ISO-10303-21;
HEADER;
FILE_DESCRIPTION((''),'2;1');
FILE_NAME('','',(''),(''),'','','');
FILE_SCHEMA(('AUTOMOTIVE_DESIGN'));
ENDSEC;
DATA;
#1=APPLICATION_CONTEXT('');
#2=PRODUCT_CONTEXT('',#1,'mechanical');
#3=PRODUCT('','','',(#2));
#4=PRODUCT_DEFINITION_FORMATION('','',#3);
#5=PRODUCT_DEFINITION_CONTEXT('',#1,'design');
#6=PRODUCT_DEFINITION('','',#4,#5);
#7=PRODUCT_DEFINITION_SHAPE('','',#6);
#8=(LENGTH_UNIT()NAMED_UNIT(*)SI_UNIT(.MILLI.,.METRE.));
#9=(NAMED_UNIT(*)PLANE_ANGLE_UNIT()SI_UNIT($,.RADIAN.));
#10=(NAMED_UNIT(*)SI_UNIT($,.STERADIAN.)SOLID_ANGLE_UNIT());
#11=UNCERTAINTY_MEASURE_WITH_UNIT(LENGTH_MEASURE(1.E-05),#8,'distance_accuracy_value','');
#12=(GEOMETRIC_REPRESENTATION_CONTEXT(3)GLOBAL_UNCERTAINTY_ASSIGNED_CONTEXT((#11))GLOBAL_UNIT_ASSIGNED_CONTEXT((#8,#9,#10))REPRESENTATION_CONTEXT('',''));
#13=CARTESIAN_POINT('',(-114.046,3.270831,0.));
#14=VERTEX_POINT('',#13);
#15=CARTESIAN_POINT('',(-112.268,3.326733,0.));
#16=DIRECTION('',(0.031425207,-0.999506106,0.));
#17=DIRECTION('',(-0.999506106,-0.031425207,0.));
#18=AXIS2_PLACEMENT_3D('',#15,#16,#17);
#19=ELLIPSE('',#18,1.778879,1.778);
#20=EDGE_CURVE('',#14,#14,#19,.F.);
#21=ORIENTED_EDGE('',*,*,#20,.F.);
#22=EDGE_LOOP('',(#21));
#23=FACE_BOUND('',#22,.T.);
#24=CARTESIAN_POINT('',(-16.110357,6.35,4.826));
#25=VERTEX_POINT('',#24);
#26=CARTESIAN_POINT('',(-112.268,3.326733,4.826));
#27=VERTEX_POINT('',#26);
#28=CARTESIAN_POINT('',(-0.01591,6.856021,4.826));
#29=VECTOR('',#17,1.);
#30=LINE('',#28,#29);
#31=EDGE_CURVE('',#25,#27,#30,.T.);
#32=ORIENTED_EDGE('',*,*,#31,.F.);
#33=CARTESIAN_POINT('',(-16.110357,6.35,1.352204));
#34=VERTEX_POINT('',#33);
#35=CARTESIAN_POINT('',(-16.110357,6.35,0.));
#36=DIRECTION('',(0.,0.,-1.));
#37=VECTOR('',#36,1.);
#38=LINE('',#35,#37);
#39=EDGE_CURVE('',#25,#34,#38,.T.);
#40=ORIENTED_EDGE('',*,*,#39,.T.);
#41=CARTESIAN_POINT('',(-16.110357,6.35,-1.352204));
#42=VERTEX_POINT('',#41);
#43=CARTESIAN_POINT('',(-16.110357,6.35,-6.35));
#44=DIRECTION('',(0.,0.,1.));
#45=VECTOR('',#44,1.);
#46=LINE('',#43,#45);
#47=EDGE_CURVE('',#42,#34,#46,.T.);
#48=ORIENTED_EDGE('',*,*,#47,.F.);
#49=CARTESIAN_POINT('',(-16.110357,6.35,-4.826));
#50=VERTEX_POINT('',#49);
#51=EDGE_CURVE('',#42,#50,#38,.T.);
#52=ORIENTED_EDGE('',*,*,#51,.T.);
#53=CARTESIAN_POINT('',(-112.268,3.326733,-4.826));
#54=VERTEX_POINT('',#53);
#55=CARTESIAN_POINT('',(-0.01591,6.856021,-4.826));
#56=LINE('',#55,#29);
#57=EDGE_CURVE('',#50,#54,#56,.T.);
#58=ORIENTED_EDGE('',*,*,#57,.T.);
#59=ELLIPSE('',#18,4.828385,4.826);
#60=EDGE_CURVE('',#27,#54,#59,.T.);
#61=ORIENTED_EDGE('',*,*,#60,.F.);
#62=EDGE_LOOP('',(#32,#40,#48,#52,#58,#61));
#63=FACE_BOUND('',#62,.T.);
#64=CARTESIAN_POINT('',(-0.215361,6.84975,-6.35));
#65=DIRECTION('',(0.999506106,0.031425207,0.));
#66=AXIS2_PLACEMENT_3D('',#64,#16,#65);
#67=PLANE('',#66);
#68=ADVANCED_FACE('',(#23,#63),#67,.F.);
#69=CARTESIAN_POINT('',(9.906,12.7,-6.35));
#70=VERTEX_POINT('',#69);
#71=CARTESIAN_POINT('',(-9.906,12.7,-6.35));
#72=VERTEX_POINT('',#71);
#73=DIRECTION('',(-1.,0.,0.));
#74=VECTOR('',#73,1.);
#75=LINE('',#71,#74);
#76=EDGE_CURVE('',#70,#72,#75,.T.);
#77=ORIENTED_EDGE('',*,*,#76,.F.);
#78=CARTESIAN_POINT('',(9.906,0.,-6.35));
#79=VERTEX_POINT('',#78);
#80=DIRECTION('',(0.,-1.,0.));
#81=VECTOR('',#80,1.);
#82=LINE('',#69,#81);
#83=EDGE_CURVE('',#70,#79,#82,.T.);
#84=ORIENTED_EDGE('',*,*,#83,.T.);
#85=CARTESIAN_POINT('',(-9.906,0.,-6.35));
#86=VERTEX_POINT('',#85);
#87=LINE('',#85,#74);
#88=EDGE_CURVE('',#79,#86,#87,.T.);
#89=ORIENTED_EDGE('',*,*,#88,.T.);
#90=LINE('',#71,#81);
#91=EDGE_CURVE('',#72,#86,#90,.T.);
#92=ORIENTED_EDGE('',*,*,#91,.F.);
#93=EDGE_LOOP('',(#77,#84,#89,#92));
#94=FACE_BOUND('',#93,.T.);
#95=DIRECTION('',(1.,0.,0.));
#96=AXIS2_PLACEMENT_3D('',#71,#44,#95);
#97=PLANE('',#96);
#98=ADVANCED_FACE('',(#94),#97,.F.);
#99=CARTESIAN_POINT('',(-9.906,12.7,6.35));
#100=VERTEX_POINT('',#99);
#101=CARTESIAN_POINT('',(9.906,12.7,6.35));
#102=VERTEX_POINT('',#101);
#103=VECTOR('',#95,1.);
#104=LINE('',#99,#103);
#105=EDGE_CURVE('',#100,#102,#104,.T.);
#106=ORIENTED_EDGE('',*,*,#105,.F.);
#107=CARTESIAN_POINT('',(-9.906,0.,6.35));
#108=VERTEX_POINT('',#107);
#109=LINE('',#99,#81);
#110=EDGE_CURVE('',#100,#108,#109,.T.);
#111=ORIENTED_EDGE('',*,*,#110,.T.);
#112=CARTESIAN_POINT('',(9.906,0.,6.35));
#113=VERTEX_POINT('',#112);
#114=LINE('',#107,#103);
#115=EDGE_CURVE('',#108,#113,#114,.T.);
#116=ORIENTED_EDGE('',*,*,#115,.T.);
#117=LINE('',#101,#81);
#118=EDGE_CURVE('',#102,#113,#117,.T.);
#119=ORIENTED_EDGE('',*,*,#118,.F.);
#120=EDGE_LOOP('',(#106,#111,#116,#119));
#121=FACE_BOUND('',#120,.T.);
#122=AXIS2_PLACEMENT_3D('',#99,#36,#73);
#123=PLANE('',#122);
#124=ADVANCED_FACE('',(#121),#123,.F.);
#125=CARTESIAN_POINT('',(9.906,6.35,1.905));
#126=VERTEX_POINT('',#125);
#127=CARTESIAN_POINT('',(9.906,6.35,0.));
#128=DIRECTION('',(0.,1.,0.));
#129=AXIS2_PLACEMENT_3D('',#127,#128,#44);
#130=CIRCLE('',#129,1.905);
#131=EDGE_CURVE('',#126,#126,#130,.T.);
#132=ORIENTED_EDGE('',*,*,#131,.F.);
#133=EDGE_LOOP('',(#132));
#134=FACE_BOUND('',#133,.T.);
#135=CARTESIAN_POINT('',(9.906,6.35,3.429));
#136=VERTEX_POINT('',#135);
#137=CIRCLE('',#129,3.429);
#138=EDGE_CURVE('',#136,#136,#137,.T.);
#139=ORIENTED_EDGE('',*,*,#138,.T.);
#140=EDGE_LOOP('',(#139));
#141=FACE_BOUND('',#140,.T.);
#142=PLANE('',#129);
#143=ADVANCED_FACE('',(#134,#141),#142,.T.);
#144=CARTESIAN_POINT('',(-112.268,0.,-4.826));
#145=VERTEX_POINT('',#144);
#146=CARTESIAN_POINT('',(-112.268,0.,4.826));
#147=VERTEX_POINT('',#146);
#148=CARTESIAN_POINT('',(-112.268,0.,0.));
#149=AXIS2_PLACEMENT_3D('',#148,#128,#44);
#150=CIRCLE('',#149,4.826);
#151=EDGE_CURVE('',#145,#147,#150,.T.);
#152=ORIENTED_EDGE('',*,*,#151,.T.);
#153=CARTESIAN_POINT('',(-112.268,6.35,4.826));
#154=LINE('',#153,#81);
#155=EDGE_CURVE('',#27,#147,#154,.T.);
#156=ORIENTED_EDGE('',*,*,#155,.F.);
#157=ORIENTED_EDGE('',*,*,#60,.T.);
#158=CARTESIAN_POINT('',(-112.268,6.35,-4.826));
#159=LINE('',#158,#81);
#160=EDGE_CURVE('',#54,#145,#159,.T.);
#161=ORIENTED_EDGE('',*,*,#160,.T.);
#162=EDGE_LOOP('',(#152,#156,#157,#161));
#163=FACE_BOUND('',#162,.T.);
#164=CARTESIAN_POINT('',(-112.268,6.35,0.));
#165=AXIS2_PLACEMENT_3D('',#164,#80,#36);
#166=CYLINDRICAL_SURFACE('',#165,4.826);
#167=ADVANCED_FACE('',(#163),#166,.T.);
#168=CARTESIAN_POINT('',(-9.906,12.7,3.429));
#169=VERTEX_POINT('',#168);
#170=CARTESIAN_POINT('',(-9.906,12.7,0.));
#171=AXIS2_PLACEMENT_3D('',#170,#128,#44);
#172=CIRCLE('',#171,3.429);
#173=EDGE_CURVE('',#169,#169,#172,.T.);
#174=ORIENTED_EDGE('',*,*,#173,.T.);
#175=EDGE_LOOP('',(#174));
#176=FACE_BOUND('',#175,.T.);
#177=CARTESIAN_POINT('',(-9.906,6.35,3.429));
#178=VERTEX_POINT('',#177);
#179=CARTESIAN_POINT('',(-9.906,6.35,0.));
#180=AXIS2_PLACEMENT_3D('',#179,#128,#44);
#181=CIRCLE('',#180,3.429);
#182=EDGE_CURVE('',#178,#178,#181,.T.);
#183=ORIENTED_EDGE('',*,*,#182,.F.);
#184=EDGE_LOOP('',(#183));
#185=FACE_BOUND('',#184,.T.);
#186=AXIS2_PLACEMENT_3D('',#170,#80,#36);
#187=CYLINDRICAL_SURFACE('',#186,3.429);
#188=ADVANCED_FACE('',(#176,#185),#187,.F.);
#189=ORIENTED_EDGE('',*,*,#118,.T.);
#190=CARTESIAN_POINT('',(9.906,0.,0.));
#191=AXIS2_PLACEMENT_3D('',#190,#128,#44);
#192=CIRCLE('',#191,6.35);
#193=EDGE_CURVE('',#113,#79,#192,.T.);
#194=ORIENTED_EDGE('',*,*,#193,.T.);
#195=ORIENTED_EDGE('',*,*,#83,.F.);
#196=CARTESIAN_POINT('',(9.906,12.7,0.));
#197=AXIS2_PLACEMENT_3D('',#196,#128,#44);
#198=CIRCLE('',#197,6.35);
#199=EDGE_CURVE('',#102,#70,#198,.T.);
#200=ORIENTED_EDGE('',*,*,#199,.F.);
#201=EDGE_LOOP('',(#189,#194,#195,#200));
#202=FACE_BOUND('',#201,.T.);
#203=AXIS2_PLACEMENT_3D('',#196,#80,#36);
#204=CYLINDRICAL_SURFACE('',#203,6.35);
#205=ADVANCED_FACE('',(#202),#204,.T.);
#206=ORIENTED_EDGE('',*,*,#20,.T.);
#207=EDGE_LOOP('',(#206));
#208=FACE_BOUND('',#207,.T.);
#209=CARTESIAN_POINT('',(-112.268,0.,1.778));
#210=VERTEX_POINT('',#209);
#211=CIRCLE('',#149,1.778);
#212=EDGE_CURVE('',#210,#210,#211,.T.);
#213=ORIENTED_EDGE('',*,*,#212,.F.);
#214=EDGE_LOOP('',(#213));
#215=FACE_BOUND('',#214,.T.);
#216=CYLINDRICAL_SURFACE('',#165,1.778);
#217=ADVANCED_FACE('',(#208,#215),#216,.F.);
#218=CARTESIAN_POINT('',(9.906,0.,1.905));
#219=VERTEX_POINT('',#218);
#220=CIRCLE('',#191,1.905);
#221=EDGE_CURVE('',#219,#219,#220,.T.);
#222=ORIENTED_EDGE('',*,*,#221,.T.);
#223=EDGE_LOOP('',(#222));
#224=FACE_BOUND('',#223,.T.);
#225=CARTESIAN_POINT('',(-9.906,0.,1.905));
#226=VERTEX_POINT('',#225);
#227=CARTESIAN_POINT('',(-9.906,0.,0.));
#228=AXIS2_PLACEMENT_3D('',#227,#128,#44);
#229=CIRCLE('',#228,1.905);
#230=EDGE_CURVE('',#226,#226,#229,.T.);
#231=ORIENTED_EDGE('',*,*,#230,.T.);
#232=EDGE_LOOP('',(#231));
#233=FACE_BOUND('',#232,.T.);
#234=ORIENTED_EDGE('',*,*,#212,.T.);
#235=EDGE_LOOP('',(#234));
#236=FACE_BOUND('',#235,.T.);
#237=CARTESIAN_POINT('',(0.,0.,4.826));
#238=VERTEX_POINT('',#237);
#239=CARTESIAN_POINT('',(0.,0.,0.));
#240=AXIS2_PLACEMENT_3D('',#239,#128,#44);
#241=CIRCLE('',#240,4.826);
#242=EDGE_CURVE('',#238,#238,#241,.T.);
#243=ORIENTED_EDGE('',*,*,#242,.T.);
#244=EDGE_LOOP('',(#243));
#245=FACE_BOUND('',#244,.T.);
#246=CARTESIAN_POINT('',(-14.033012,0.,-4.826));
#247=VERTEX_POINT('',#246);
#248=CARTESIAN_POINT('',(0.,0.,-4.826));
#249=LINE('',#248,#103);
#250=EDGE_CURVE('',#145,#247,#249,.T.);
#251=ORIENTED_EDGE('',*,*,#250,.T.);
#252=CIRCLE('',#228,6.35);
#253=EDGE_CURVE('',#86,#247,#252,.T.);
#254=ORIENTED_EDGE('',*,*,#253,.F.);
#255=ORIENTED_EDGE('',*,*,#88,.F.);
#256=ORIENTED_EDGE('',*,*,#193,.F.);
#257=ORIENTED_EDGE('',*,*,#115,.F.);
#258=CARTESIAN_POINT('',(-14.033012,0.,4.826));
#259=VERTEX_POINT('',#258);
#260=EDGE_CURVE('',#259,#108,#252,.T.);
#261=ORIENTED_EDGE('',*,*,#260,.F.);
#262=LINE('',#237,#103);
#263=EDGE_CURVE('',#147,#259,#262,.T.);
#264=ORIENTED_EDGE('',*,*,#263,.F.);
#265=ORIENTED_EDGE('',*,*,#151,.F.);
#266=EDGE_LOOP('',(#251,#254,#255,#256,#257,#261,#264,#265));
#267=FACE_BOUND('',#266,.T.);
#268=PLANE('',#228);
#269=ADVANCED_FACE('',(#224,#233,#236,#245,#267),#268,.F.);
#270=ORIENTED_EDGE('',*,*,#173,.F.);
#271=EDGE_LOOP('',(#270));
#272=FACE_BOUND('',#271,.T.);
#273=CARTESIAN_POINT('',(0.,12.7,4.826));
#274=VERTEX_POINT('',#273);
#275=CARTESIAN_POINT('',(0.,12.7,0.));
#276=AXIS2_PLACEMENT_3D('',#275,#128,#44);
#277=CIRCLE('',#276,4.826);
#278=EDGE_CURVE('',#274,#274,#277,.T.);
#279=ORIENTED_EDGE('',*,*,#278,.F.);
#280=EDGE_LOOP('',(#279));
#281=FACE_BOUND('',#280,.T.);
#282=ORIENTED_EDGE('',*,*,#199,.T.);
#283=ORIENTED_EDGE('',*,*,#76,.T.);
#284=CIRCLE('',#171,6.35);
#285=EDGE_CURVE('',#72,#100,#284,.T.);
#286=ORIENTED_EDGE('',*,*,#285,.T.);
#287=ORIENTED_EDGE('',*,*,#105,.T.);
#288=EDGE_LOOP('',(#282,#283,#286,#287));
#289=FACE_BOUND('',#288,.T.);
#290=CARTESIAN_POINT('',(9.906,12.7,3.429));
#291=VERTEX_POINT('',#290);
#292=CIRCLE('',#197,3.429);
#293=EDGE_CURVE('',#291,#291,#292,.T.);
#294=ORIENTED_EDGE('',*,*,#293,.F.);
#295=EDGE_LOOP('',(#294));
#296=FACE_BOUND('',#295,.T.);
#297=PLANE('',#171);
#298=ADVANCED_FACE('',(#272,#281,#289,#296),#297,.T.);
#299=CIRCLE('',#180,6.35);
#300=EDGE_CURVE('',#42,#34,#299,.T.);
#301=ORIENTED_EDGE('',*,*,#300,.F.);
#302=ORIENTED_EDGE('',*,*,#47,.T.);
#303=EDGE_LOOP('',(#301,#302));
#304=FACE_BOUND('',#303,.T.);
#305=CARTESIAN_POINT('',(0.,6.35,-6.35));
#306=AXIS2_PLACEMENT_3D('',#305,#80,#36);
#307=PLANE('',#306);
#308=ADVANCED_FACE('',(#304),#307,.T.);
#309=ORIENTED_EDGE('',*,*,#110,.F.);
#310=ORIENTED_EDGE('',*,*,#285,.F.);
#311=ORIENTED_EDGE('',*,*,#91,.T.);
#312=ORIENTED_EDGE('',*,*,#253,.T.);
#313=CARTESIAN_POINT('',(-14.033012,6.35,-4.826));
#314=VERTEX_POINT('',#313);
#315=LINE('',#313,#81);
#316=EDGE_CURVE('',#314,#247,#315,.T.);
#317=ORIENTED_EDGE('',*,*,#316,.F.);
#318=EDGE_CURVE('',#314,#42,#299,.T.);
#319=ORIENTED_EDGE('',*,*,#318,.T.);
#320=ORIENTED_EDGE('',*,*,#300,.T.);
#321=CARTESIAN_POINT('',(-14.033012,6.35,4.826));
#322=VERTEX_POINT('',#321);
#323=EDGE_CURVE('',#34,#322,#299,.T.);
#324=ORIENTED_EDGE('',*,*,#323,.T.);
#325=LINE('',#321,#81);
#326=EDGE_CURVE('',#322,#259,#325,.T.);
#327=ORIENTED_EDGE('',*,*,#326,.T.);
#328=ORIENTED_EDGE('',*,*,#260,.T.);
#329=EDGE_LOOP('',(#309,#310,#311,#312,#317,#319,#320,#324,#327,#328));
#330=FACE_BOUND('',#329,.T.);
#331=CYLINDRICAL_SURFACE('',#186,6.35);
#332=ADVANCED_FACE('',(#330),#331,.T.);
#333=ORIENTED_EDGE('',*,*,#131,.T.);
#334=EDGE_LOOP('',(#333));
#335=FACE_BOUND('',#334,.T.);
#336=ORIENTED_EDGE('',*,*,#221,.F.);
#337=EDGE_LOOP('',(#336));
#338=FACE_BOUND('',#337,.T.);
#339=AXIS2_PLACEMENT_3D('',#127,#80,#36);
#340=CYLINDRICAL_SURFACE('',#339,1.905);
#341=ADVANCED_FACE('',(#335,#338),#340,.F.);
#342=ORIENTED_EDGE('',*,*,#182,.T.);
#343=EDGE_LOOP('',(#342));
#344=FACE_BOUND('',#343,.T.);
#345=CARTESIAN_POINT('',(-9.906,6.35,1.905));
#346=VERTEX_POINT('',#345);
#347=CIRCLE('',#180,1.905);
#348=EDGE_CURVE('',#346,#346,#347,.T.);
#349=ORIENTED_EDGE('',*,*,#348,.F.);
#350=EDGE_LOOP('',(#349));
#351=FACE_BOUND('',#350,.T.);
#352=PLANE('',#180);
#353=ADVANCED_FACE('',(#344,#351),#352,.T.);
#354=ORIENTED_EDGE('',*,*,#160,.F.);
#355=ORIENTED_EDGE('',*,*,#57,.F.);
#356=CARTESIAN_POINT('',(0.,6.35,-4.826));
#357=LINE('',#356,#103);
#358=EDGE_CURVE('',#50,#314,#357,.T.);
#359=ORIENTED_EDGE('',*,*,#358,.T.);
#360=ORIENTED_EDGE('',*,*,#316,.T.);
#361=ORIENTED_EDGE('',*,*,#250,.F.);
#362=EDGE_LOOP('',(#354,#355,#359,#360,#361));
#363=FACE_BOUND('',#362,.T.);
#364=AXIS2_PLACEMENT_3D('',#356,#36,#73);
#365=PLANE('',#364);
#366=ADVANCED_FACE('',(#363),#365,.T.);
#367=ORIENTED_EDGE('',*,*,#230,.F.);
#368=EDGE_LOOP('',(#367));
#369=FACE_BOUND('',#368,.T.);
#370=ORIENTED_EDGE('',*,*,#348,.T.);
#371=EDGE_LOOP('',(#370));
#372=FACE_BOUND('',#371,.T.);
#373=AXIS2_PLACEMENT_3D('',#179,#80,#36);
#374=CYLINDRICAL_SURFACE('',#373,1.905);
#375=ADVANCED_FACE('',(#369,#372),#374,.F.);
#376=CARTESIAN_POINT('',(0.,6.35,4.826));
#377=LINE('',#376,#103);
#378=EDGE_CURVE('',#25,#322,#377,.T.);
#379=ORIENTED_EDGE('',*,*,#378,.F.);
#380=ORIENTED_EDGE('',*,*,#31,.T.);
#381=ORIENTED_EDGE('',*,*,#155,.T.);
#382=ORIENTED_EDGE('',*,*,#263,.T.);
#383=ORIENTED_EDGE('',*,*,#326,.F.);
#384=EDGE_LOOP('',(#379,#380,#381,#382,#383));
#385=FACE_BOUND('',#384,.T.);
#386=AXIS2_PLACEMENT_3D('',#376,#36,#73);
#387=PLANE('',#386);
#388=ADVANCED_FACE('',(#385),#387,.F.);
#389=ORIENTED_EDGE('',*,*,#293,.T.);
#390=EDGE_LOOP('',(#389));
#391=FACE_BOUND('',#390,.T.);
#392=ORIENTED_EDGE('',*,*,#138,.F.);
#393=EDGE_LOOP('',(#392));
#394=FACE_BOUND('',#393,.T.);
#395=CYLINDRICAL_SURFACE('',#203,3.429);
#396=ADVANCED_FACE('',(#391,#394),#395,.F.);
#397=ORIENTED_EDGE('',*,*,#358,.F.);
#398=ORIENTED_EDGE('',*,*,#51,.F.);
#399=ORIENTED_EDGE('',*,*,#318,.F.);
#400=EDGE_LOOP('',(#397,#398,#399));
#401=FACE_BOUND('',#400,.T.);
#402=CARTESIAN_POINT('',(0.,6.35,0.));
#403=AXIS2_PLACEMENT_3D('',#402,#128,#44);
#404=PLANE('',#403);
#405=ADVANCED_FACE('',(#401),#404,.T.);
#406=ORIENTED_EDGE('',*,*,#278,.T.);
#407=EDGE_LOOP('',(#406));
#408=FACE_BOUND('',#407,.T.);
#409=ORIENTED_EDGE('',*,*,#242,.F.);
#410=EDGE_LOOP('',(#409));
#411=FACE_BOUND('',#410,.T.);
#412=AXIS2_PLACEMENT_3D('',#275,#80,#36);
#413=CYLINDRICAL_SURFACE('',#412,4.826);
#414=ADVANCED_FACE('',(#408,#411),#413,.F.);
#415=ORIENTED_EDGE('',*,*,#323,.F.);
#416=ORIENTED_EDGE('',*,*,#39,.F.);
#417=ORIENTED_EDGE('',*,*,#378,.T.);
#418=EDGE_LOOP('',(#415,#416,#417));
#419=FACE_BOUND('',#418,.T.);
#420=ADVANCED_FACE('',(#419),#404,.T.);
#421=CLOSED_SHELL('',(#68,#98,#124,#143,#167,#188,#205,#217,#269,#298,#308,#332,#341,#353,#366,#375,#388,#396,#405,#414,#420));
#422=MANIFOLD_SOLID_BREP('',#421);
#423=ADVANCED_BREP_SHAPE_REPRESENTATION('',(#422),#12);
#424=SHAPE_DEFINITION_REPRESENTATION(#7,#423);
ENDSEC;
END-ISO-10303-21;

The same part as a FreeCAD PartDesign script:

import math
import FreeCAD as App
import Part
import Sketcher

V = App.Vector
Q = App.Units.Quantity


def add_polygon(sketch, points):
    """Adds a closed chain of lines whose ends are joined by coincident constraints."""
    first, n = sketch.GeometryCount, len(points)
    for a, b in zip(points, points[1:] + points[:1]):
        sketch.addGeometry(Part.LineSegment(App.Vector(*a, 0), App.Vector(*b, 0)), False)
    for i in range(n):
        sketch.addConstraint(Sketcher.Constraint("Coincident", first + i, 2, first + (i + 1) % n, 1))

doc = App.newDocument("Part")
body = doc.addObject("PartDesign::Body", "Body")

# Sketch on XZ plane
sketch1 = doc.addObject("Sketcher::SketchObject", "Sketch")
body.addObject(sketch1)
sketch1.AttachmentSupport = (doc.XZ_Plane, [""])
sketch1.MapMode = "FlatFace"
sketch1.addGeometry([
    Part.LineSegment(V(9.9, -6.3, 0), V(-9.9, -6.3, 0)),  # 0
    Part.ArcOfCircle(Part.Circle(V(-9.9, 0, 0), V(0, 0, 1), 6.3), math.radians(90), math.radians(270)),  # 1
    Part.LineSegment(V(-9.9, 6.3, 0), V(9.9, 6.3, 0)),  # 2
    Part.ArcOfCircle(Part.Circle(V(9.9, 0, 0), V(0, 0, 1), 6.3), math.radians(-90), math.radians(90)),  # 3
    Part.Circle(V(9.9, 0, 0), V(0, 0, 1), 3.4),  # 4
    Part.Circle(V(-9.9, 0, 0), V(0, 0, 1), 3.4),  # 5
    Part.Circle(V(0, 0, 0), V(0, 0, 1), 4.8),  # 6
], False)
sketch1.addConstraint([
    Sketcher.Constraint("Tangent", 0, 2, 1, 2),
    Sketcher.Constraint("Tangent", 1, 1, 2, 1),
    Sketcher.Constraint("Tangent", 2, 2, 3, 2),
    Sketcher.Constraint("Tangent", 3, 1, 0, 1),
    Sketcher.Constraint("Horizontal", 0),
    Sketcher.Constraint("Horizontal", 2),
    Sketcher.Constraint("Coincident", 6, 3, -1, 1),
    Sketcher.Constraint("Coincident", 4, 3, 3, 3),
    Sketcher.Constraint("Coincident", 5, 3, 1, 3),
    Sketcher.Constraint("Equal", 4, 5),
    Sketcher.Constraint("Symmetric", 1, 3, 3, 3, -1, 1),
    Sketcher.Constraint("Diameter", 4, Q("0.27 in")),
    Sketcher.Constraint("Diameter", 6, Q("0.38 in")),
    Sketcher.Constraint("Radius", 1, Q("0.25 in")),
    Sketcher.Constraint("DistanceX", 0, 2, 0, 1, Q("0.78 in")),
])
pad1 = doc.addObject("PartDesign::Pad", "Pad")
body.addObject(pad1)
pad1.Profile = sketch1
pad1.Length = Q("0.5 in")
pad1.Reversed = True

# Sketch on XZ plane
sketch2 = doc.addObject("Sketcher::SketchObject", "Sketch001")
body.addObject(sketch2)
sketch2.AttachmentSupport = (doc.XZ_Plane, [""])
sketch2.MapMode = "FlatFace"
sketch2.addGeometry([
    Part.Circle(V(-9.9, 0, 0), V(0, 0, 1), 3.4),
    Part.Circle(V(-9.9, 0, 0), V(0, 0, 1), 1.9),
    Part.Circle(V(9.9, 0, 0), V(0, 0, 1), 3.4),
    Part.Circle(V(9.9, 0, 0), V(0, 0, 1), 1.9),
], False)
sketch2.addConstraint([
    Sketcher.Constraint("Coincident", 1, 3, 0, 3),
    Sketcher.Constraint("Coincident", 3, 3, 2, 3),
    Sketcher.Constraint("Equal", 0, 2),
    Sketcher.Constraint("Equal", 1, 3),
    Sketcher.Constraint("Symmetric", 0, 3, 2, 3, -1, 1),
    Sketcher.Constraint("PointOnObject", 0, 3, -1),
    Sketcher.Constraint("Diameter", 0, Q("0.27 in")),
    Sketcher.Constraint("Diameter", 1, Q("0.15 in")),
    Sketcher.Constraint("DistanceX", 0, 3, -1, 1, Q("0.39 in")),
])
pad2 = doc.addObject("PartDesign::Pad", "Pad001")
body.addObject(pad2)
pad2.Profile = sketch2
pad2.Length = Q("0.25 in")
pad2.Reversed = True

# Sketch on XZ plane
sketch3 = doc.addObject("Sketcher::SketchObject", "Sketch002")
body.addObject(sketch3)
sketch3.AttachmentSupport = (doc.XZ_Plane, [""])
sketch3.MapMode = "FlatFace"
sketch3.addGeometry([
    Part.ArcOfCircle(Part.Circle(V(-9.9, 0, 0), V(0, 0, 1), 6.4), math.radians(131), math.radians(180)),  # 0
    Part.ArcOfCircle(Part.Circle(V(-9.9, 0, 0), V(0, 0, 1), 6.4), math.radians(-180), math.radians(-131)),  # 1
    Part.LineSegment(V(-14, -4.8, 0), V(-112.3, -4.8, 0)),  # 2
    Part.ArcOfCircle(Part.Circle(V(-112.3, 0, 0), V(0, 0, 1), 4.8), math.radians(90), math.radians(270)),  # 3
    Part.LineSegment(V(-112.3, 4.8, 0), V(-14, 4.8, 0)),  # 4
], False)
sketch3.addConstraint([
    Sketcher.Constraint("Tangent", 0, 2, 1, 1),
    Sketcher.Constraint("Coincident", 1, 2, 2, 1),
    Sketcher.Constraint("Tangent", 2, 2, 3, 2),
    Sketcher.Constraint("Tangent", 3, 1, 4, 1),
    Sketcher.Constraint("Coincident", 4, 2, 0, 1),
    Sketcher.Constraint("Horizontal", 2),
    Sketcher.Constraint("Horizontal", 4),
    Sketcher.Constraint("Equal", 0, 1),
    Sketcher.Constraint("Symmetric", 1, 2, 4, 2, -1),
    Sketcher.Constraint("PointOnObject", 0, 2, -1),
    Sketcher.Constraint("Radius", 0, Q("0.25 in")),
    Sketcher.Constraint("Radius", 3, Q("0.19 in")),
    Sketcher.Constraint("DistanceX", 0, 3, -1, 1, Q("0.39 in")),
    Sketcher.Constraint("DistanceX", 3, 3, -1, 1, Q("4.42 in")),
])
pad3 = doc.addObject("PartDesign::Pad", "Pad002")
body.addObject(pad3)
pad3.Profile = sketch3
pad3.Length = Q("0.25 in")
pad3.Reversed = True

# Sketch on XY plane
sketch4 = doc.addObject("Sketcher::SketchObject", "Sketch003")
body.addObject(sketch4)
sketch4.AttachmentSupport = (doc.XY_Plane, [""])
sketch4.MapMode = "FlatFace"
add_polygon(sketch4, [(-16.1, 6.3), (-117.1, 6.3), (-117.1, 3.2)])  # lines 0-2
sketch4.addConstraint([
    Sketcher.Constraint("Horizontal", 0),
    Sketcher.Constraint("Vertical", 1),
    Sketcher.Constraint("DistanceY", 1, 2, 1, 1, Q("0.125 in")),
    Sketcher.Constraint("DistanceX", 0, 2, -1, 1, Q("4.61 in")),
    Sketcher.Constraint("DistanceY", -1, 1, 0, 2, Q("0.25 in")),
    Sketcher.Constraint("DistanceX", 0, 2, 0, 1, 100.983643),
])
pocket1 = doc.addObject("PartDesign::Pocket", "Pocket")
body.addObject(pocket1)
pocket1.Profile = sketch4
pocket1.Type = "ThroughAll"
pocket1.Midplane = True

# Sketch on XZ plane
sketch5 = doc.addObject("Sketcher::SketchObject", "Sketch004")
body.addObject(sketch5)
sketch5.AttachmentSupport = (doc.XZ_Plane, [""])
sketch5.MapMode = "FlatFace"
sketch5.addGeometry(Part.Circle(V(-112.3, 0, 0), V(0, 0, 1), 1.8), False)
sketch5.addConstraint([
    Sketcher.Constraint("PointOnObject", 0, 3, -1),
    Sketcher.Constraint("Diameter", 0, Q("0.14 in")),
    Sketcher.Constraint("DistanceX", 0, 3, -1, 1, Q("4.42 in")),
])
pocket2 = doc.addObject("PartDesign::Pocket", "Pocket001")
body.addObject(pocket2)
pocket2.Profile = sketch5
pocket2.Length = Q("0.25 in")

doc.recompute()
